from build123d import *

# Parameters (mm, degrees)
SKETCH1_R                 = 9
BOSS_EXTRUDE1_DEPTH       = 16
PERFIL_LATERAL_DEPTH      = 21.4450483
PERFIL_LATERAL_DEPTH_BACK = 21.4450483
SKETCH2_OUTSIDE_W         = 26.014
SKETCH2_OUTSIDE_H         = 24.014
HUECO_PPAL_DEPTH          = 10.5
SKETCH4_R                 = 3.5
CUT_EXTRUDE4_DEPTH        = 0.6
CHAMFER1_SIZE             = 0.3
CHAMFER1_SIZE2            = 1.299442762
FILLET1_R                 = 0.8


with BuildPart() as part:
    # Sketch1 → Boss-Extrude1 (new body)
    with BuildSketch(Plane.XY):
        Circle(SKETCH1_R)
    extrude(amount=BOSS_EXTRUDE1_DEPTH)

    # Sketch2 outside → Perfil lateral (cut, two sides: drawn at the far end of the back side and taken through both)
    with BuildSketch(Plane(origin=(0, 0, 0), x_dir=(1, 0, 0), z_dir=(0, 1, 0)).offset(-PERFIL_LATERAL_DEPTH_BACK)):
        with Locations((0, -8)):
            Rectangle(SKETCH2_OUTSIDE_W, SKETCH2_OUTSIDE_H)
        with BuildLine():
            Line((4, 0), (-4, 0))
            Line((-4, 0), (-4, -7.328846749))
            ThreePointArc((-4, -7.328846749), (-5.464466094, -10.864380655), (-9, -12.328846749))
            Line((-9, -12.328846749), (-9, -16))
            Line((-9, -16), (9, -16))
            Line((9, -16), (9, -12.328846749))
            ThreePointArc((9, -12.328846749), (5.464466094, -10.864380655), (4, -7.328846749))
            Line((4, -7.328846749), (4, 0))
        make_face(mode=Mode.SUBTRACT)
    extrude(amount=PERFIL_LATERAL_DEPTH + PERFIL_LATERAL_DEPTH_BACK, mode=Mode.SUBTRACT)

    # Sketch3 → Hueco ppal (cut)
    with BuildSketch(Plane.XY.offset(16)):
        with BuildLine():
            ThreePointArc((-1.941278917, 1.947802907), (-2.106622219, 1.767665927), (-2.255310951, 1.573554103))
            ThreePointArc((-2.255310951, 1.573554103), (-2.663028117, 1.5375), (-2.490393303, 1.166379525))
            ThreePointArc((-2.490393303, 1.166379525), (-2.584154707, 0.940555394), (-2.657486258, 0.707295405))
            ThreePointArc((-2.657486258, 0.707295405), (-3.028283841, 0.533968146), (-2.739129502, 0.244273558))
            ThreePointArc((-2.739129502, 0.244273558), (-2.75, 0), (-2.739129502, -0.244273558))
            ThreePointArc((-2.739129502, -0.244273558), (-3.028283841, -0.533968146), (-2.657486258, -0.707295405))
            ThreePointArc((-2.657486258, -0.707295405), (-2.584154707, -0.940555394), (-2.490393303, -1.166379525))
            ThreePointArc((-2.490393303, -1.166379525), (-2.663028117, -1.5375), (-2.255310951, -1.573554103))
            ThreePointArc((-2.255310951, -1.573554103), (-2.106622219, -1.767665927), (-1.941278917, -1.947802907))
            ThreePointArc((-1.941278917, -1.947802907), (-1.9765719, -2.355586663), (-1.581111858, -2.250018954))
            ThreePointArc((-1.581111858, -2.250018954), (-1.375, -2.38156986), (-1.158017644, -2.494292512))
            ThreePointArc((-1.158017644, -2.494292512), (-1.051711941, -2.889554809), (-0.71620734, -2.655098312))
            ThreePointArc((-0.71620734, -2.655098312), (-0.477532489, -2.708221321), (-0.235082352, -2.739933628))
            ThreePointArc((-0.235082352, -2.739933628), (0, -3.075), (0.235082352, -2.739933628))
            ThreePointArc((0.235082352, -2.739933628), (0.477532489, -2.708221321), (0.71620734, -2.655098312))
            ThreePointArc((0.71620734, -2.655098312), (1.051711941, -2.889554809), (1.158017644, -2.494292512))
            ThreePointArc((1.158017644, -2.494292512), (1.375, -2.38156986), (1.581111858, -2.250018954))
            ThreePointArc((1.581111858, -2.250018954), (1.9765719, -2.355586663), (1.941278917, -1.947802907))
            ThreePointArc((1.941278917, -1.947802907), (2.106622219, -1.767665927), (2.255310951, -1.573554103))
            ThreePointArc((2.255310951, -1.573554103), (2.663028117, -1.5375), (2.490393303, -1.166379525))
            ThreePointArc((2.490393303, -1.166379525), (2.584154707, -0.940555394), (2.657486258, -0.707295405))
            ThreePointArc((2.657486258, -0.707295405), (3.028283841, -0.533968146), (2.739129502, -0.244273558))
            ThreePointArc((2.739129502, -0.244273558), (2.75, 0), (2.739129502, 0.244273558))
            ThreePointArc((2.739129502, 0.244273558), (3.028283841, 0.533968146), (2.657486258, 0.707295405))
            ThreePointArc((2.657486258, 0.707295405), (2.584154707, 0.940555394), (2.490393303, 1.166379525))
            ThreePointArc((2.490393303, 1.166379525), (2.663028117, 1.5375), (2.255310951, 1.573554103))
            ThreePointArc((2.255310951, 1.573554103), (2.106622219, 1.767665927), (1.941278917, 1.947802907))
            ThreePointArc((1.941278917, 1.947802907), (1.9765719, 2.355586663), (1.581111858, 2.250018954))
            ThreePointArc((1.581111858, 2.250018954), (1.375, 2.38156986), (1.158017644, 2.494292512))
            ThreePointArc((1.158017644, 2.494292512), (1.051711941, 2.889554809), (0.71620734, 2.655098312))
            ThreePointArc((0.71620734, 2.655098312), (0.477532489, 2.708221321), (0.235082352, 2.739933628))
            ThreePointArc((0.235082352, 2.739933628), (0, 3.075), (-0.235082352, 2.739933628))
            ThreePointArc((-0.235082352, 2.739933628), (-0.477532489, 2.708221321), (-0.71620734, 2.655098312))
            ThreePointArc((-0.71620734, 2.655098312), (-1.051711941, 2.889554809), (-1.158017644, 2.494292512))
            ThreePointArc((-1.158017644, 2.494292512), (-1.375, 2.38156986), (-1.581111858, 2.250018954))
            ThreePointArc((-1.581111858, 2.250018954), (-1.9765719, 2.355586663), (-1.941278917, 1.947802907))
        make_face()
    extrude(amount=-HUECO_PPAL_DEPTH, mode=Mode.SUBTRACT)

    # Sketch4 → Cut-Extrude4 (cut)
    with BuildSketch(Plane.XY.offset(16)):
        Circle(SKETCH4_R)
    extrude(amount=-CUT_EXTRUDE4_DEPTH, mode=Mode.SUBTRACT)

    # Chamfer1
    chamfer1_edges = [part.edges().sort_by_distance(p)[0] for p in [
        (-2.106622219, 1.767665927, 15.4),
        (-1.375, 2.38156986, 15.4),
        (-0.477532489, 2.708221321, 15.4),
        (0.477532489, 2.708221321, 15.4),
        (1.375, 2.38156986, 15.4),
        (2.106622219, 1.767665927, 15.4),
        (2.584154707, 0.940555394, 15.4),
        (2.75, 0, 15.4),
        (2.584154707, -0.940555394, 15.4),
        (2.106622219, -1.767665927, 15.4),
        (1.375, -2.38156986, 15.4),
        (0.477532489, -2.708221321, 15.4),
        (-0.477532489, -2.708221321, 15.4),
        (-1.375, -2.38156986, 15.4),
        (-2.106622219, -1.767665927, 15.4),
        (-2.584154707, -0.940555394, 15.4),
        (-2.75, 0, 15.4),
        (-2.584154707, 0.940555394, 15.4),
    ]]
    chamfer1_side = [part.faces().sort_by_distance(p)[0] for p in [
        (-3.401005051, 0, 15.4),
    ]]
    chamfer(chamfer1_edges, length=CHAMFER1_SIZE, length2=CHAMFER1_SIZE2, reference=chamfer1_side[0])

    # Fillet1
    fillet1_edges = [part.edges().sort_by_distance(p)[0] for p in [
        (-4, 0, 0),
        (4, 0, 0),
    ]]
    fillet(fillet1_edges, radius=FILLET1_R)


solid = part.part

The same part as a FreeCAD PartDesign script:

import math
import FreeCAD as App
import Part
import Sketcher

V = App.Vector
Q = App.Units.Quantity


def edges_at(feature, points):
    """Names of the edges that pass closest to the given points."""
    edges = feature.Shape.Edges
    near = lambda p: min(range(len(edges)), key=lambda i: edges[i].distToShape(Part.Vertex(*p))[0])
    return sorted({f"Edge{near(p) + 1}" for p in points})

doc = App.newDocument("Part")
body = doc.addObject("PartDesign::Body", "Body")

sketch1 = body.newObject("Sketcher::SketchObject", "Sketch")
sketch1.AttachmentSupport = (doc.getObject("XY_Plane"), [""])
sketch1.MapMode = "FlatFace"
sketch1.addGeometry(Part.Circle(V(0, 0, 0), V(0, 0, 1), 9), False)
sketch1.addConstraint(Sketcher.Constraint("Coincident", 0, 3, -1, 1))
sketch1.addConstraint(Sketcher.Constraint("Diameter", 0, Q("18 mm")))
pad1 = body.newObject("PartDesign::Pad", "Pad")
pad1.Profile = sketch1
pad1.Length = 16

sketch2 = body.newObject("Sketcher::SketchObject", "Sketch001")
sketch2.AttachmentSupport = (doc.getObject("XZ_Plane"), [""])
sketch2.MapMode = "FlatFace"
sketch2.addGeometry(Part.LineSegment(V(-13, -4, 0), V(-13, 20, 0)), False)
sketch2.addGeometry(Part.LineSegment(V(-13, 20, 0), V(13, 20, 0)), False)
sketch2.addGeometry(Part.LineSegment(V(13, 20, 0), V(13, -4, 0)), False)
sketch2.addGeometry(Part.LineSegment(V(13, -4, 0), V(-13, -4, 0)), False)
sketch2.addGeometry(Part.LineSegment(V(-4, 0, 0), V(4, 0, 0)), False)
sketch2.addGeometry(Part.LineSegment(V(4, 0, 0), V(4, 7.3, 0)), False)
sketch2.addGeometry(Part.ArcOfCircle(Part.Circle(V(9, 7.3, 0), V(0, 0, 1), 5), math.radians(90), math.radians(180)), False)
sketch2.addGeometry(Part.LineSegment(V(9, 12.3, 0), V(9, 16, 0)), False)
sketch2.addGeometry(Part.LineSegment(V(9, 16, 0), V(-9, 16, 0)), False)
sketch2.addGeometry(Part.LineSegment(V(-9, 16, 0), V(-9, 12.3, 0)), False)
sketch2.addGeometry(Part.ArcOfCircle(Part.Circle(V(-9, 7.3, 0), V(0, 0, 1), 5), math.radians(0), math.radians(90)), False)
sketch2.addGeometry(Part.LineSegment(V(-4, 7.3, 0), V(-4, 0, 0)), False)
sketch2.addConstraint(Sketcher.Constraint("Coincident", 0, 2, 1, 1))
sketch2.addConstraint(Sketcher.Constraint("Coincident", 1, 2, 2, 1))
sketch2.addConstraint(Sketcher.Constraint("Coincident", 2, 2, 3, 1))
sketch2.addConstraint(Sketcher.Constraint("Coincident", 3, 2, 0, 1))
sketch2.addConstraint(Sketcher.Constraint("Coincident", 4, 2, 5, 1))
sketch2.addConstraint(Sketcher.Constraint("Tangent", 5, 2, 6, 2))
sketch2.addConstraint(Sketcher.Constraint("Coincident", 6, 1, 7, 1))
sketch2.addConstraint(Sketcher.Constraint("Coincident", 7, 2, 8, 1))
sketch2.addConstraint(Sketcher.Constraint("Coincident", 8, 2, 9, 1))
sketch2.addConstraint(Sketcher.Constraint("Coincident", 9, 2, 10, 2))
sketch2.addConstraint(Sketcher.Constraint("Tangent", 10, 1, 11, 1))
sketch2.addConstraint(Sketcher.Constraint("Coincident", 11, 2, 4, 1))
sketch2.addConstraint(Sketcher.Constraint("Vertical", 0))
sketch2.addConstraint(Sketcher.Constraint("Horizontal", 1))
sketch2.addConstraint(Sketcher.Constraint("Vertical", 2))
sketch2.addConstraint(Sketcher.Constraint("Horizontal", 3))
sketch2.addConstraint(Sketcher.Constraint("Horizontal", 4))
sketch2.addConstraint(Sketcher.Constraint("Vertical", 5))
sketch2.addConstraint(Sketcher.Constraint("Vertical", 7))
sketch2.addConstraint(Sketcher.Constraint("Horizontal", 8))
sketch2.addConstraint(Sketcher.Constraint("Vertical", 9))
sketch2.addConstraint(Sketcher.Constraint("Vertical", 11))
sketch2.addConstraint(Sketcher.Constraint("Equal", 6, 10))
sketch2.addConstraint(Sketcher.Constraint("Symmetric", 4, 2, 11, 2, -1, 1))
sketch2.addConstraint(Sketcher.Constraint("Symmetric", 6, 1, 9, 2, -2))
sketch2.addConstraint(Sketcher.Constraint("Vertical", 10, 3, 8, 2))
sketch2.addConstraint(Sketcher.Constraint("Radius", 6, Q("5 mm")))
sketch2.addConstraint(Sketcher.Constraint("DistanceX", 4, 1, 4, 2, Q("8 mm")))
sketch2.addConstraint(Sketcher.Constraint("DistanceY", -1, 1, 7, 2, Q("16 mm")))
sketch2.addConstraint(Sketcher.Constraint("DistanceX", 1, 1, 1, 2, Q("26.014 mm")))
sketch2.addConstraint(Sketcher.Constraint("DistanceY", 0, 1, 0, 2, Q("24.014 mm")))
sketch2.addConstraint(Sketcher.Constraint("DistanceX", 0, 2, -1, 1, Q("13.007 mm")))
sketch2.addConstraint(Sketcher.Constraint("DistanceY", -1, 1, 0, 2, Q("20.007 mm")))
sketch2.addConstraint(Sketcher.Constraint("DistanceY", 5, 1, 5, 2, Q("7.328847 mm")))
pocket1 = body.newObject("PartDesign::Pocket", "Pocket")
pocket1.Profile = sketch2
pocket1.Type = "ThroughAll"
pocket1.Midplane = True

sketch3 = body.newObject("Sketcher::SketchObject", "Sketch002")
sketch3.AttachmentSupport = (doc.getObject("XY_Plane"), [""])
sketch3.MapMode = "FlatFace"
sketch3.AttachmentOffset = App.Placement(V(0, 0, 16), App.Rotation())
sketch3.addGeometry(Part.ArcOfCircle(Part.Circle(V(0, 0, 0), V(0, 0, 1), 2.75), math.radians(134.9), math.radians(145.1)), False)
sketch3.addGeometry(Part.ArcOfCircle(Part.Circle(V(-2.45, 1.41, 0), V(0, 0, 1), 0.25), math.radians(40), math.radians(260)), False)
sketch3.addGeometry(Part.ArcOfCircle(Part.Circle(V(0, 0, 0), V(0, 0, 1), 2.75), math.radians(154.9), math.radians(165.1)), False)
sketch3.addGeometry(Part.ArcOfCircle(Part.Circle(V(-2.78, 0.49, 0), V(0, 0, 1), 0.25), math.radians(60), math.radians(280)), False)
sketch3.addGeometry(Part.ArcOfCircle(Part.Circle(V(0, 0, 0), V(0, 0, 1), 2.75), math.radians(174.9), math.radians(185.1)), False)
sketch3.addGeometry(Part.ArcOfCircle(Part.Circle(V(-2.78, -0.49, 0), V(0, 0, 1), 0.25), math.radians(80), math.radians(300)), False)
sketch3.addGeometry(Part.ArcOfCircle(Part.Circle(V(0, 0, 0), V(0, 0, 1), 2.75), math.radians(-165.1), math.radians(-154.9)), False)
sketch3.addGeometry(Part.ArcOfCircle(Part.Circle(V(-2.45, -1.41, 0), V(0, 0, 1), 0.25), math.radians(100), math.radians(320)), False)
sketch3.addGeometry(Part.ArcOfCircle(Part.Circle(V(0, 0, 0), V(0, 0, 1), 2.75), math.radians(-145.1), math.radians(-134.9)), False)
sketch3.addGeometry(Part.ArcOfCircle(Part.Circle(V(-1.82, -2.16, 0), V(0, 0, 1), 0.25), math.radians(120), math.radians(340)), False)
sketch3.addGeometry(Part.ArcOfCircle(Part.Circle(V(0, 0, 0), V(0, 0, 1), 2.75), math.radians(-125.1), math.radians(-114.9)), False)
sketch3.addGeometry(Part.ArcOfCircle(Part.Circle(V(-0.97, -2.65, 0), V(0, 0, 1), 0.25), math.radians(140), math.radians(360)), False)
sketch3.addGeometry(Part.ArcOfCircle(Part.Circle(V(0, 0, 0), V(0, 0, 1), 2.75), math.radians(-105.1), math.radians(-94.9)), False)
sketch3.addGeometry(Part.ArcOfCircle(Part.Circle(V(0, -2.83, 0), V(0, 0, 1), 0.25), math.radians(160), math.radians(380)), False)
sketch3.addGeometry(Part.ArcOfCircle(Part.Circle(V(0, 0, 0), V(0, 0, 1), 2.75), math.radians(-85.1), math.radians(-74.9)), False)
sketch3.addGeometry(Part.ArcOfCircle(Part.Circle(V(0.97, -2.65, 0), V(0, 0, 1), 0.25), math.radians(-180), math.radians(40)), False)
sketch3.addGeometry(Part.ArcOfCircle(Part.Circle(V(0, 0, 0), V(0, 0, 1), 2.75), math.radians(-65.1), math.radians(-54.9)), False)
sketch3.addGeometry(Part.ArcOfCircle(Part.Circle(V(1.82, -2.16, 0), V(0, 0, 1), 0.25), math.radians(-160), math.radians(60)), False)
sketch3.addGeometry(Part.ArcOfCircle(Part.Circle(V(0, 0, 0), V(0, 0, 1), 2.75), math.radians(-45.1), math.radians(-34.9)), False)
sketch3.addGeometry(Part.ArcOfCircle(Part.Circle(V(2.45, -1.41, 0), V(0, 0, 1), 0.25), math.radians(-140), math.radians(80)), False)
sketch3.addGeometry(Part.ArcOfCircle(Part.Circle(V(0, 0, 0), V(0, 0, 1), 2.75), math.radians(-25.1), math.radians(-14.9)), False)
sketch3.addGeometry(Part.ArcOfCircle(Part.Circle(V(2.78, -0.49, 0), V(0, 0, 1), 0.25), math.radians(-120), math.radians(100)), False)
sketch3.addGeometry(Part.ArcOfCircle(Part.Circle(V(0, 0, 0), V(0, 0, 1), 2.75), math.radians(-5.1), math.radians(5.1)), False)
sketch3.addGeometry(Part.ArcOfCircle(Part.Circle(V(2.78, 0.49, 0), V(0, 0, 1), 0.25), math.radians(-100), math.radians(120)), False)
sketch3.addGeometry(Part.ArcOfCircle(Part.Circle(V(0, 0, 0), V(0, 0, 1), 2.75), math.radians(14.9), math.radians(25.1)), False)
sketch3.addGeometry(Part.ArcOfCircle(Part.Circle(V(2.45, 1.41, 0), V(0, 0, 1), 0.25), math.radians(-80), math.radians(140)), False)
sketch3.addGeometry(Part.ArcOfCircle(Part.Circle(V(0, 0, 0), V(0, 0, 1), 2.75), math.radians(34.9), math.radians(45.1)), False)
sketch3.addGeometry(Part.ArcOfCircle(Part.Circle(V(1.82, 2.16, 0), V(0, 0, 1), 0.25), math.radians(-60), math.radians(160)), False)
sketch3.addGeometry(Part.ArcOfCircle(Part.Circle(V(0, 0, 0), V(0, 0, 1), 2.75), math.radians(54.9), math.radians(65.1)), False)
sketch3.addGeometry(Part.ArcOfCircle(Part.Circle(V(0.97, 2.65, 0), V(0, 0, 1), 0.25), math.radians(-40), math.radians(180)), False)
sketch3.addGeometry(Part.ArcOfCircle(Part.Circle(V(0, 0, 0), V(0, 0, 1), 2.75), math.radians(74.9), math.radians(85.1)), False)
sketch3.addGeometry(Part.ArcOfCircle(Part.Circle(V(0, 2.83, 0), V(0, 0, 1), 0.25), math.radians(-20), math.radians(200)), False)
sketch3.addGeometry(Part.ArcOfCircle(Part.Circle(V(0, 0, 0), V(0, 0, 1), 2.75), math.radians(94.9), math.radians(105.1)), False)
sketch3.addGeometry(Part.ArcOfCircle(Part.Circle(V(-0.97, 2.65, 0), V(0, 0, 1), 0.25), math.radians(0), math.radians(220)), False)
sketch3.addGeometry(Part.ArcOfCircle(Part.Circle(V(0, 0, 0), V(0, 0, 1), 2.75), math.radians(114.9), math.radians(125.1)), False)
sketch3.addGeometry(Part.ArcOfCircle(Part.Circle(V(-1.82, 2.16, 0), V(0, 0, 1), 0.25), math.radians(20), math.radians(240)), False)
sketch3.addConstraint(Sketcher.Constraint("Coincident", 0, 2, 1, 1))
sketch3.addConstraint(Sketcher.Constraint("Coincident", 1, 2, 2, 1))
sketch3.addConstraint(Sketcher.Constraint("Coincident", 2, 2, 3, 1))
sketch3.addConstraint(Sketcher.Constraint("Coincident", 3, 2, 4, 1))
sketch3.addConstraint(Sketcher.Constraint("Coincident", 4, 2, 5, 1))
sketch3.addConstraint(Sketcher.Constraint("Coincident", 5, 2, 6, 1))
sketch3.addConstraint(Sketcher.Constraint("Coincident", 6, 2, 7, 1))
sketch3.addConstraint(Sketcher.Constraint("Coincident", 7, 2, 8, 1))
sketch3.addConstraint(Sketcher.Constraint("Coincident", 8, 2, 9, 1))
sketch3.addConstraint(Sketcher.Constraint("Coincident", 9, 2, 10, 1))
sketch3.addConstraint(Sketcher.Constraint("Coincident", 10, 2, 11, 1))
sketch3.addConstraint(Sketcher.Constraint("Coincident", 11, 2, 12, 1))
sketch3.addConstraint(Sketcher.Constraint("Coincident", 12, 2, 13, 1))
sketch3.addConstraint(Sketcher.Constraint("Coincident", 13, 2, 14, 1))
sketch3.addConstraint(Sketcher.Constraint("Coincident", 14, 2, 15, 1))
sketch3.addConstraint(Sketcher.Constraint("Coincident", 15, 2, 16, 1))
sketch3.addConstraint(Sketcher.Constraint("Coincident", 16, 2, 17, 1))
sketch3.addConstraint(Sketcher.Constraint("Coincident", 17, 2, 18, 1))
sketch3.addConstraint(Sketcher.Constraint("Coincident", 18, 2, 19, 1))
sketch3.addConstraint(Sketcher.Constraint("Coincident", 19, 2, 20, 1))
sketch3.addConstraint(Sketcher.Constraint("Coincident", 20, 2, 21, 1))
sketch3.addConstraint(Sketcher.Constraint("Coincident", 21, 2, 22, 1))
sketch3.addConstraint(Sketcher.Constraint("Coincident", 22, 2, 23, 1))
sketch3.addConstraint(Sketcher.Constraint("Coincident", 23, 2, 24, 1))
sketch3.addConstraint(Sketcher.Constraint("Coincident", 24, 2, 25, 1))
sketch3.addConstraint(Sketcher.Constraint("Coincident", 25, 2, 26, 1))
sketch3.addConstraint(Sketcher.Constraint("Coincident", 26, 2, 27, 1))
sketch3.addConstraint(Sketcher.Constraint("Coincident", 27, 2, 28, 1))
sketch3.addConstraint(Sketcher.Constraint("Coincident", 28, 2, 29, 1))
sketch3.addConstraint(Sketcher.Constraint("Coincident", 29, 2, 30, 1))
sketch3.addConstraint(Sketcher.Constraint("Coincident", 30, 2, 31, 1))
sketch3.addConstraint(Sketcher.Constraint("Coincident", 31, 2, 32, 1))
sketch3.addConstraint(Sketcher.Constraint("Coincident", 32, 2, 33, 1))
sketch3.addConstraint(Sketcher.Constraint("Coincident", 33, 2, 34, 1))
sketch3.addConstraint(Sketcher.Constraint("Coincident", 34, 2, 35, 1))
sketch3.addConstraint(Sketcher.Constraint("Coincident", 35, 2, 0, 1))
sketch3.addConstraint(Sketcher.Constraint("Coincident", 0, 3, -1, 1))
sketch3.addConstraint(Sketcher.Constraint("Coincident", 2, 3, -1, 1))
sketch3.addConstraint(Sketcher.Constraint("Coincident", 4, 3, -1, 1))
sketch3.addConstraint(Sketcher.Constraint("Coincident", 6, 3, -1, 1))
sketch3.addConstraint(Sketcher.Constraint("Coincident", 8, 3, -1, 1))
sketch3.addConstraint(Sketcher.Constraint("Coincident", 10, 3, -1, 1))
sketch3.addConstraint(Sketcher.Constraint("Coincident", 12, 3, -1, 1))
sketch3.addConstraint(Sketcher.Constraint("Coincident", 14, 3, -1, 1))
sketch3.addConstraint(Sketcher.Constraint("Coincident", 16, 3, -1, 1))
sketch3.addConstraint(Sketcher.Constraint("Coincident", 18, 3, -1, 1))
sketch3.addConstraint(Sketcher.Constraint("Coincident", 20, 3, -1, 1))
sketch3.addConstraint(Sketcher.Constraint("Coincident", 22, 3, -1, 1))
sketch3.addConstraint(Sketcher.Constraint("Coincident", 24, 3, -1, 1))
sketch3.addConstraint(Sketcher.Constraint("Coincident", 26, 3, -1, 1))
sketch3.addConstraint(Sketcher.Constraint("Coincident", 28, 3, -1, 1))
sketch3.addConstraint(Sketcher.Constraint("Coincident", 30, 3, -1, 1))
sketch3.addConstraint(Sketcher.Constraint("Coincident", 32, 3, -1, 1))
sketch3.addConstraint(Sketcher.Constraint("Coincident", 34, 3, -1, 1))
sketch3.addConstraint(Sketcher.Constraint("Equal", 0, 2))
sketch3.addConstraint(Sketcher.Constraint("Equal", 1, 3))
sketch3.addConstraint(Sketcher.Constraint("Equal", 2, 4))
sketch3.addConstraint(Sketcher.Constraint("Equal", 3, 5))
sketch3.addConstraint(Sketcher.Constraint("Equal", 4, 6))
sketch3.addConstraint(Sketcher.Constraint("Equal", 5, 7))
sketch3.addConstraint(Sketcher.Constraint("Equal", 6, 8))
sketch3.addConstraint(Sketcher.Constraint("Equal", 7, 9))
sketch3.addConstraint(Sketcher.Constraint("Equal", 8, 10))
sketch3.addConstraint(Sketcher.Constraint("Equal", 9, 11))
sketch3.addConstraint(Sketcher.Constraint("Equal", 10, 12))
sketch3.addConstraint(Sketcher.Constraint("Equal", 11, 13))
sketch3.addConstraint(Sketcher.Constraint("Equal", 12, 14))
sketch3.addConstraint(Sketcher.Constraint("Equal", 13, 15))
sketch3.addConstraint(Sketcher.Constraint("Equal", 14, 16))
sketch3.addConstraint(Sketcher.Constraint("Equal", 15, 17))
sketch3.addConstraint(Sketcher.Constraint("Equal", 16, 18))
sketch3.addConstraint(Sketcher.Constraint("Equal", 17, 19))
sketch3.addConstraint(Sketcher.Constraint("Equal", 18, 20))
sketch3.addConstraint(Sketcher.Constraint("Equal", 19, 21))
sketch3.addConstraint(Sketcher.Constraint("Equal", 20, 22))
sketch3.addConstraint(Sketcher.Constraint("Equal", 21, 23))
sketch3.addConstraint(Sketcher.Constraint("Equal", 22, 24))
sketch3.addConstraint(Sketcher.Constraint("Equal", 23, 25))
sketch3.addConstraint(Sketcher.Constraint("Equal", 24, 26))
sketch3.addConstraint(Sketcher.Constraint("Equal", 25, 27))
sketch3.addConstraint(Sketcher.Constraint("Equal", 26, 28))
sketch3.addConstraint(Sketcher.Constraint("Equal", 27, 29))
sketch3.addConstraint(Sketcher.Constraint("Equal", 28, 30))
sketch3.addConstraint(Sketcher.Constraint("Equal", 29, 31))
sketch3.addConstraint(Sketcher.Constraint("Equal", 30, 32))
sketch3.addConstraint(Sketcher.Constraint("Equal", 31, 33))
sketch3.addConstraint(Sketcher.Constraint("Equal", 32, 34))
sketch3.addConstraint(Sketcher.Constraint("Equal", 33, 35))
sketch3.addConstraint(Sketcher.Constraint("Symmetric", 1, 3, 19, 3, -1, 1))
sketch3.addConstraint(Sketcher.Constraint("Symmetric", 3, 3, 21, 3, -1, 1))
sketch3.addConstraint(Sketcher.Constraint("Symmetric", 5, 3, 23, 3, -1, 1))
sketch3.addConstraint(Sketcher.Constraint("Symmetric", 7, 3, 25, 3, -1, 1))
sketch3.addConstraint(Sketcher.Constraint("Symmetric", 9, 3, 27, 3, -1, 1))
sketch3.addConstraint(Sketcher.Constraint("Symmetric", 11, 3, 29, 3, -1, 1))
sketch3.addConstraint(Sketcher.Constraint("Symmetric", 13, 3, 31, 3, -1, 1))
sketch3.addConstraint(Sketcher.Constraint("Symmetric", 15, 3, 33, 3, -1, 1))
sketch3.addConstraint(Sketcher.Constraint("Symmetric", 17, 3, 35, 3, -1, 1))
sketch3.addConstraint(Sketcher.Constraint("Symmetric", 11, 3, 15, 3, -2))
sketch3.addConstraint(Sketcher.Constraint("Symmetric", 9, 3, 17, 3, -2))
sketch3.addConstraint(Sketcher.Constraint("Symmetric", 7, 3, 19, 3, -2))
sketch3.addConstraint(Sketcher.Constraint("Symmetric", 5, 3, 21, 3, -2))
sketch3.addConstraint(Sketcher.Constraint("PointOnObject", 13, 3, -2))
sketch3.addConstraint(Sketcher.Constraint("Radius", 0, Q("2.75 mm")))
sketch3.addConstraint(Sketcher.Constraint("Radius", 1, Q("0.25 mm")))
sketch3.addConstraint(Sketcher.Constraint("DistanceY", 13, 3, -1, 1, Q("2.825 mm")))
sketch3.addConstraint(Sketcher.Constraint("DistanceY", -1, 1, 1, 3, Q("1.4125 mm")))
sketch3.addConstraint(Sketcher.Constraint("DistanceY", 11, 2, -1, 1, Q("2.655098 mm")))
sketch3.addConstraint(Sketcher.Constraint("DistanceX", 1, 3, -1, 1, Q("2.446522 mm")))
sketch3.addConstraint(Sketcher.Constraint("DistanceX", 3, 3, -1, 1, Q("2.782082 mm")))
sketch3.addConstraint(Sketcher.Constraint("DistanceY", 11, 3, -1, 1, Q("2.654632 mm")))
sketch3.addConstraint(Sketcher.Constraint("DistanceX", 3, 2, -1, 1, Q("2.73913 mm")))
sketch3.addConstraint(Sketcher.Constraint("DistanceX", 8, 2, -1, 1, Q("1.941279 mm")))
sketch3.addConstraint(Sketcher.Constraint("DistanceX", 9, 2, -1, 1, Q("1.581112 mm")))
pocket2 = body.newObject("PartDesign::Pocket", "Pocket001")
pocket2.Profile = sketch3
pocket2.Length = 10.5

sketch4 = body.newObject("Sketcher::SketchObject", "Sketch003")
sketch4.AttachmentSupport = (doc.getObject("XY_Plane"), [""])
sketch4.MapMode = "FlatFace"
sketch4.AttachmentOffset = App.Placement(V(0, 0, 16), App.Rotation())
sketch4.addGeometry(Part.Circle(V(0, 0, 0), V(0, 0, 1), 3.5), False)
sketch4.addConstraint(Sketcher.Constraint("Coincident", 0, 3, -1, 1))
sketch4.addConstraint(Sketcher.Constraint("Diameter", 0, Q("7 mm")))
pocket3 = body.newObject("PartDesign::Pocket", "Pocket002")
pocket3.Profile = sketch4
pocket3.Length = 0.6
doc.recompute()

chamfer = body.newObject("PartDesign::Chamfer", "Chamfer")
chamfer.Base = (pocket3, edges_at(pocket3, [
    (-2.107, 1.768, 15.4),
    (-1.375, 2.382, 15.4),
    (-0.478, 2.708, 15.4),
    (0.478, 2.708, 15.4),
    (1.375, 2.382, 15.4),
    (2.107, 1.768, 15.4),
    (2.584, 0.941, 15.4),
    (2.75, 0, 15.4),
    (2.584, -0.941, 15.4),
    (2.107, -1.768, 15.4),
    (1.375, -2.382, 15.4),
    (0.478, -2.708, 15.4),
    (-0.478, -2.708, 15.4),
    (-1.375, -2.382, 15.4),
    (-2.107, -1.768, 15.4),
    (-2.584, -0.941, 15.4),
    (-2.75, 0, 15.4),
    (-2.584, 0.941, 15.4),
]))
chamfer.ChamferType = "Two distances"
chamfer.Size = 0.3
chamfer.Size2 = 1.299443
doc.recompute()

fillet = body.newObject("PartDesign::Fillet", "Fillet")
fillet.Base = (chamfer, edges_at(chamfer, [(-4, 0, 0), (4, 0, 0)]))
fillet.Radius = 0.8

doc.recompute()
